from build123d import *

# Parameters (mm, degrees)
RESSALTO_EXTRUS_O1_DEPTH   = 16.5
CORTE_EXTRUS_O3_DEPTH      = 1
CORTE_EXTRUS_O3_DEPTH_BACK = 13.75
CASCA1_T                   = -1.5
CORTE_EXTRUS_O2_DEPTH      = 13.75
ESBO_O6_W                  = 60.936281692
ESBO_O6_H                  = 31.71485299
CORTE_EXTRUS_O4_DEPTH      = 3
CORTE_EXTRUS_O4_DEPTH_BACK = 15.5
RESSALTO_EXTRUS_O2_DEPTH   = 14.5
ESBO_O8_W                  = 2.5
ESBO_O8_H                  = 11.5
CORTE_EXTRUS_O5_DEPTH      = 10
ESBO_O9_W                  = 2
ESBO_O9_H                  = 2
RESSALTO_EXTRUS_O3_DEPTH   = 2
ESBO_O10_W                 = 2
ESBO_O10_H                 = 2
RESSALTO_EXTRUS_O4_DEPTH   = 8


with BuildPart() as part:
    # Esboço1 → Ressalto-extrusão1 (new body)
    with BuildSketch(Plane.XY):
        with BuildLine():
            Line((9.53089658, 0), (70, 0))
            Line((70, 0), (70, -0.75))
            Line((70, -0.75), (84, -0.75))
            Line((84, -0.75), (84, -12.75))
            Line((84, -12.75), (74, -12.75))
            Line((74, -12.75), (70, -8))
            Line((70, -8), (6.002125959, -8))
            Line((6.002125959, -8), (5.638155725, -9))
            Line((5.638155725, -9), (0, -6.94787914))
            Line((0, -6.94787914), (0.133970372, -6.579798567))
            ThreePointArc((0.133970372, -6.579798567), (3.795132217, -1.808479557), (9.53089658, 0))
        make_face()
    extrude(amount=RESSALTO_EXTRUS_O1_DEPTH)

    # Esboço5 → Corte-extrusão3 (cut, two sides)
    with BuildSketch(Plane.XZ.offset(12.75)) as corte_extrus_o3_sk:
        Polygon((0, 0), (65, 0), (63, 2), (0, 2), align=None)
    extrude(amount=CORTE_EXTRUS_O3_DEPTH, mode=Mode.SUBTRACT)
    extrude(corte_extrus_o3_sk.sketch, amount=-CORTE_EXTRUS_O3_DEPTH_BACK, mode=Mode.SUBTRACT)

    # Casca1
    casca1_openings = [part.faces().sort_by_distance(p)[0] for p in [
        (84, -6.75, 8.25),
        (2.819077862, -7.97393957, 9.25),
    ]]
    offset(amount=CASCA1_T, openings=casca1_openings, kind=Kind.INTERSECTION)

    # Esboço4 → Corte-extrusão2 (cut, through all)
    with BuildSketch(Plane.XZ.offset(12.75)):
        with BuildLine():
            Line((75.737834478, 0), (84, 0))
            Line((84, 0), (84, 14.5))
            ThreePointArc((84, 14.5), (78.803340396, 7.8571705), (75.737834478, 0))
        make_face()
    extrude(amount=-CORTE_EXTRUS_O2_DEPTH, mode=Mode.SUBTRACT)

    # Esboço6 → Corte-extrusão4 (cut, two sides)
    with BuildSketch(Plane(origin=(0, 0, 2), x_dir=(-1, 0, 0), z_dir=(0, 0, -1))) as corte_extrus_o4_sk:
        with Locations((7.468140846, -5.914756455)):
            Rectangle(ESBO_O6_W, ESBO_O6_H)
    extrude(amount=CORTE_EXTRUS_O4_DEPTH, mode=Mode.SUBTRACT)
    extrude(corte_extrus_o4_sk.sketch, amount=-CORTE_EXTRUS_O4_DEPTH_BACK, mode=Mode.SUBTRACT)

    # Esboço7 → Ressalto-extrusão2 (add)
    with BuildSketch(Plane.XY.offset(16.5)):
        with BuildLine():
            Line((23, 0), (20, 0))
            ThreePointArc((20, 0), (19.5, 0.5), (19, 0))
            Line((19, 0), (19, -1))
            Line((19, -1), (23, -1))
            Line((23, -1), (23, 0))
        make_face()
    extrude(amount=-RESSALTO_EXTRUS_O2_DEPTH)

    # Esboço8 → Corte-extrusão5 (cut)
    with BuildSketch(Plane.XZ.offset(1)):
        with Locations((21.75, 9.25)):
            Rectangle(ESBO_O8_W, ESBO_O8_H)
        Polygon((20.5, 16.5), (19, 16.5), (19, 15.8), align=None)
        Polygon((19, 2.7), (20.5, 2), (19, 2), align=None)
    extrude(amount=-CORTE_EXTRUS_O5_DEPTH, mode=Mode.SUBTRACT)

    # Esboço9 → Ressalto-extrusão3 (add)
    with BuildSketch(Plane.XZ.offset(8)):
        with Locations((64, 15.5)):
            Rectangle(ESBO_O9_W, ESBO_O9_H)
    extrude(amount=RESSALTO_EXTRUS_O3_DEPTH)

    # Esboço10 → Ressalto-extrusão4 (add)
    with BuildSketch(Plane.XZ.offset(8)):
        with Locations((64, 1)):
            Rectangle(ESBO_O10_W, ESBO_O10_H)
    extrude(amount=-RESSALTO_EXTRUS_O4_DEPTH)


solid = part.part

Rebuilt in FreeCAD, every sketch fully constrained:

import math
import FreeCAD as App
import Part
import Sketcher

V = App.Vector
Q = App.Units.Quantity


def faces_at(feature, points):
    """Names of the faces that lie closest to the given points."""
    faces = feature.Shape.Faces
    near = lambda p: min(range(len(faces)), key=lambda i: faces[i].distToShape(Part.Vertex(*p))[0])
    return sorted({f"Face{near(p) + 1}" for p in points})


def add_polygon(sketch, points):
    """Adds a closed chain of lines whose ends are joined by coincident constraints."""
    first, n = sketch.GeometryCount, len(points)
    for a, b in zip(points, points[1:] + points[:1]):
        sketch.addGeometry(Part.LineSegment(App.Vector(*a, 0), App.Vector(*b, 0)), False)
    for i in range(n):
        sketch.addConstraint(Sketcher.Constraint("Coincident", first + i, 2, first + (i + 1) % n, 1))

doc = App.newDocument("Part")
params = doc.addObject("Spreadsheet::Sheet", "Params")
for row, (alias, value) in enumerate([
    ("sketch1_radius", "10 mm"),
    ("sketch1_width", "10 mm"),
    ("sketch1_width2", "14 mm"),
    ("sketch1_height", "12 mm"),
    ("sketch1_length", "6 mm"),
    ("pad1_length", "16.5 mm"),
    ("sketch2_width", "65 mm"),
    ("sketch2_width2", "63 mm"),
    ("sketch2_height", "2 mm"),
    ("thickness_wall", "1.5 mm"),
    ("sketch3_radius", "29 mm"),
    ("sketch3_height", "14.5 mm"),
    ("sketch5_radius", "0.5 mm"),
    ("sketch5_width", "3 mm"),
    ("sketch5_height", "1 mm"),
    ("pad2_length", "14.5 mm"),
    ("sketch6_width", "2.5 mm"),
    ("sketch6_width2", "1.5 mm"),
    ("sketch6_height", "11.5 mm"),
    ("sketch6_height2", "0.7 mm"),
    ("pocket4_length", "10 mm"),
    ("sketch7_width", "2 mm"),
    ("pad3_length", "2 mm"),
    ("sketch8_width", "2 mm"),
    ("pad4_length", "8 mm"),
], start=1):
    params.set(f"A{row}", alias)
    params.set(f"B{row}", "=" + value)
    params.setAlias(f"B{row}", alias)

body = doc.addObject("PartDesign::Body", "Body")

# Sketch on XY plane
sketch1 = body.newObject("Sketcher::SketchObject", "Sketch")
sketch1.AttachmentSupport = (doc.getObject("XY_Plane"), [""])
sketch1.MapMode = "FlatFace"
sketch1.addGeometry(Part.LineSegment(V(70, 0, 0), V(9.53, 0, 0)), False)
sketch1.addGeometry(Part.ArcOfCircle(Part.Circle(V(9.53, -10, 0), V(0, 0, 1), 10), math.radians(90), math.radians(160)), False)
sketch1.addGeometry(Part.LineSegment(V(0.13, -6.58, 0), V(0, -6.95, 0)), False)
sketch1.addGeometry(Part.LineSegment(V(0, -6.95, 0), V(5.64, -9, 0)), False)
sketch1.addGeometry(Part.LineSegment(V(5.64, -9, 0), V(6, -8, 0)), False)
sketch1.addGeometry(Part.LineSegment(V(6, -8, 0), V(70, -8, 0)), False)
sketch1.addGeometry(Part.LineSegment(V(70, -8, 0), V(74, -12.75, 0)), False)
sketch1.addGeometry(Part.LineSegment(V(74, -12.75, 0), V(84, -12.75, 0)), False)
sketch1.addGeometry(Part.LineSegment(V(84, -12.75, 0), V(84, -0.75, 0)), False)
sketch1.addGeometry(Part.LineSegment(V(84, -0.75, 0), V(70, -0.75, 0)), False)
sketch1.addGeometry(Part.LineSegment(V(70, -0.75, 0), V(70, 0, 0)), False)
sketch1.addConstraint(Sketcher.Constraint("Tangent", 0, 2, 1, 1))
sketch1.addConstraint(Sketcher.Constraint("Tangent", 1, 2, 2, 1))
sketch1.addConstraint(Sketcher.Constraint("Coincident", 2, 2, 3, 1))
sketch1.addConstraint(Sketcher.Constraint("Coincident", 3, 2, 4, 1))
sketch1.addConstraint(Sketcher.Constraint("Coincident", 4, 2, 5, 1))
sketch1.addConstraint(Sketcher.Constraint("Coincident", 5, 2, 6, 1))
sketch1.addConstraint(Sketcher.Constraint("Coincident", 6, 2, 7, 1))
sketch1.addConstraint(Sketcher.Constraint("Coincident", 7, 2, 8, 1))
sketch1.addConstraint(Sketcher.Constraint("Coincident", 8, 2, 9, 1))
sketch1.addConstraint(Sketcher.Constraint("Coincident", 9, 2, 10, 1))
sketch1.addConstraint(Sketcher.Constraint("Coincident", 10, 2, 0, 1))
sketch1.addConstraint(Sketcher.Constraint("Horizontal", 0))
sketch1.addConstraint(Sketcher.Constraint("Horizontal", 5))
sketch1.addConstraint(Sketcher.Constraint("Horizontal", 7))
sketch1.addConstraint(Sketcher.Constraint("Vertical", 8))
sketch1.addConstraint(Sketcher.Constraint("Horizontal", 9))
sketch1.addConstraint(Sketcher.Constraint("Vertical", 10))
sketch1.addConstraint(Sketcher.Constraint("PointOnObject", 0, 2, -1))
sketch1.addConstraint(Sketcher.Constraint("PointOnObject", 2, 2, -2))
sketch1.addConstraint(Sketcher.Constraint("Perpendicular", 2, 3))
sketch1.addConstraint(Sketcher.Constraint("Perpendicular", 3, 4))
sketch1.addConstraint(Sketcher.Constraint("Vertical", 5, 2, 9, 2))
sketch1.addConstraint(Sketcher.Constraint("Radius", 1, 10.0))
sketch1.addConstraint(Sketcher.Constraint("DistanceX", 7, 1, 7, 2, 10.0))
sketch1.addConstraint(Sketcher.Constraint("DistanceX", 9, 2, 9, 1, 14.0))
sketch1.addConstraint(Sketcher.Constraint("DistanceY", 8, 1, 8, 2, 12.0))
sketch1.addConstraint(Sketcher.Constraint("Angle", 2, Q("-110 deg")))
sketch1.addConstraint(Sketcher.Constraint("Distance", 3, 6.0))
sketch1.addConstraint(Sketcher.Constraint("DistanceY", 3, 2, -1, 1, 9.0))
sketch1.addConstraint(Sketcher.Constraint("DistanceY", 4, 2, -1, 1, 8.0))
sketch1.addConstraint(Sketcher.Constraint("DistanceX", -1, 1, 5, 2, 70.0))
sketch1.addConstraint(Sketcher.Constraint("DistanceY", 10, 1, 10, 2, 0.75))
sketch1.setExpression("Constraints[22]", "Params.sketch1_radius")
sketch1.setExpression("Constraints[23]", "Params.sketch1_width")
sketch1.setExpression("Constraints[24]", "Params.sketch1_width2")
sketch1.setExpression("Constraints[25]", "Params.sketch1_height")
sketch1.setExpression("Constraints[27]", "Params.sketch1_length")
pad1 = body.newObject("PartDesign::Pad", "Pad")
pad1.Profile = sketch1
pad1.setExpression("Length", "Params.pad1_length")

# Sketch on XZ plane
sketch2 = body.newObject("Sketcher::SketchObject", "Sketch001")
sketch2.AttachmentSupport = (doc.getObject("XZ_Plane"), [""])
sketch2.MapMode = "FlatFace"
sketch2.AttachmentOffset = App.Placement(V(0, 0, 12.75), App.Rotation())
add_polygon(sketch2, [(0, 0), (65, 0), (63, 2), (0, 2)])  # lines 0-3
sketch2.addConstraint(Sketcher.Constraint("Horizontal", 0))
sketch2.addConstraint(Sketcher.Constraint("Horizontal", 2))
sketch2.addConstraint(Sketcher.Constraint("Vertical", 3))
sketch2.addConstraint(Sketcher.Constraint("Coincident", 3, 2, -1, 1))
sketch2.addConstraint(Sketcher.Constraint("DistanceX", 0, 1, 0, 2, 65.0))
sketch2.addConstraint(Sketcher.Constraint("DistanceX", 2, 2, 2, 1, 63.0))
sketch2.addConstraint(Sketcher.Constraint("DistanceY", 3, 2, 3, 1, 2.0))
sketch2.setExpression("Constraints[8]", "Params.sketch2_width")
sketch2.setExpression("Constraints[9]", "Params.sketch2_width2")
sketch2.setExpression("Constraints[10]", "Params.sketch2_height")
pocket1 = body.newObject("PartDesign::Pocket", "Pocket")
pocket1.Profile = sketch2
pocket1.Type = "ThroughAll"
pocket1.Midplane = True
doc.recompute()

thickness = body.newObject("PartDesign::Thickness", "Thickness")
thickness.Base = (pocket1, faces_at(pocket1, [(84, -6.75, 8.25), (2.819, -7.974, 9.25)]))
thickness.setExpression("Value", "Params.thickness_wall")
thickness.Reversed = True
thickness.Join = "Intersection"

# Sketch on XZ plane
sketch3 = body.newObject("Sketcher::SketchObject", "Sketch002")
sketch3.AttachmentSupport = (doc.getObject("XZ_Plane"), [""])
sketch3.MapMode = "FlatFace"
sketch3.AttachmentOffset = App.Placement(V(0, 0, 12.75), App.Rotation())
sketch3.addGeometry(Part.LineSegment(V(76, 0, 0), V(84, 0, 0)), False)
sketch3.addGeometry(Part.LineSegment(V(84, 0, 0), V(84, 14, 0)), False)
sketch3.addGeometry(Part.ArcOfCircle(Part.Circle(V(104, -7, 0), V(0, 0, 1), 29), math.radians(134), math.radians(167)), False)
sketch3.addConstraint(Sketcher.Constraint("Coincident", 0, 2, 1, 1))
sketch3.addConstraint(Sketcher.Constraint("Coincident", 1, 2, 2, 1))
sketch3.addConstraint(Sketcher.Constraint("Coincident", 2, 2, 0, 1))
sketch3.addConstraint(Sketcher.Constraint("Horizontal", 0))
sketch3.addConstraint(Sketcher.Constraint("Vertical", 1))
sketch3.addConstraint(Sketcher.Constraint("PointOnObject", 0, 2, -1))
sketch3.addConstraint(Sketcher.Constraint("Radius", 2, 29.0))
sketch3.addConstraint(Sketcher.Constraint("DistanceY", 1, 1, 1, 2, 14.5))
sketch3.addConstraint(Sketcher.Constraint("DistanceX", -1, 1, 2, 3, 104.0))
sketch3.addConstraint(Sketcher.Constraint("DistanceX", -1, 1, 0, 2, 84.0))
sketch3.setExpression("Constraints[6]", "Params.sketch3_radius")
sketch3.setExpression("Constraints[7]", "Params.sketch3_height")
pocket2 = body.newObject("PartDesign::Pocket", "Pocket001")
pocket2.Profile = sketch3
pocket2.Type = "ThroughAll"

# Sketch on XY plane
sketch4 = body.newObject("Sketcher::SketchObject", "Sketch003")
sketch4.AttachmentSupport = (doc.getObject("XY_Plane"), [""])
sketch4.MapMode = "FlatFace"
sketch4.AttachmentOffset = App.Placement(V(0, 0, 2), App.Rotation())
add_polygon(sketch4, [(23, 10), (23, -22), (-38, -22), (-38, 10)])  # lines 0-3
sketch4.addConstraint(Sketcher.Constraint("Vertical", 0))
sketch4.addConstraint(Sketcher.Constraint("Horizontal", 1))
sketch4.addConstraint(Sketcher.Constraint("Vertical", 2))
sketch4.addConstraint(Sketcher.Constraint("Horizontal", 3))
sketch4.addConstraint(Sketcher.Constraint("DistanceX", -1, 1, 0, 2, 23.0))
sketch4.addConstraint(Sketcher.Constraint("DistanceX", 1, 2, 1, 1, 60.936282))
sketch4.addConstraint(Sketcher.Constraint("DistanceY", 0, 2, 0, 1, 31.714853))
sketch4.addConstraint(Sketcher.Constraint("DistanceY", -1, 1, 2, 2, 9.94267))
pocket3 = body.newObject("PartDesign::Pocket", "Pocket002")
pocket3.Profile = sketch4
pocket3.Type = "ThroughAll"
pocket3.Midplane = True

# Sketch on XY plane
sketch5 = body.newObject("Sketcher::SketchObject", "Sketch004")
sketch5.AttachmentSupport = (doc.getObject("XY_Plane"), [""])
sketch5.MapMode = "FlatFace"
sketch5.AttachmentOffset = App.Placement(V(0, 0, 16.5), App.Rotation())
sketch5.addGeometry(Part.LineSegment(V(23, 0, 0), V(20, 0, 0)), False)
sketch5.addGeometry(Part.ArcOfCircle(Part.Circle(V(19.5, 0, 0), V(0, 0, 1), 0.5), math.radians(0), math.radians(180)), False)
sketch5.addGeometry(Part.LineSegment(V(19, 0, 0), V(19, -1, 0)), False)
sketch5.addGeometry(Part.LineSegment(V(19, -1, 0), V(23, -1, 0)), False)
sketch5.addGeometry(Part.LineSegment(V(23, -1, 0), V(23, 0, 0)), False)
sketch5.addConstraint(Sketcher.Constraint("Coincident", 0, 2, 1, 1))
sketch5.addConstraint(Sketcher.Constraint("Tangent", 1, 2, 2, 1))
sketch5.addConstraint(Sketcher.Constraint("Coincident", 2, 2, 3, 1))
sketch5.addConstraint(Sketcher.Constraint("Coincident", 3, 2, 4, 1))
sketch5.addConstraint(Sketcher.Constraint("Coincident", 4, 2, 0, 1))
sketch5.addConstraint(Sketcher.Constraint("Horizontal", 0))
sketch5.addConstraint(Sketcher.Constraint("Vertical", 2))
sketch5.addConstraint(Sketcher.Constraint("Horizontal", 3))
sketch5.addConstraint(Sketcher.Constraint("Vertical", 4))
sketch5.addConstraint(Sketcher.Constraint("PointOnObject", 1, 3, -1))
sketch5.addConstraint(Sketcher.Constraint("PointOnObject", 0, 2, -1))
sketch5.addConstraint(Sketcher.Constraint("Radius", 1, 0.5))
sketch5.addConstraint(Sketcher.Constraint("DistanceX", 0, 2, 0, 1, 3.0))
sketch5.addConstraint(Sketcher.Constraint("DistanceY", 2, 2, 2, 1, 1.0))
sketch5.addConstraint(Sketcher.Constraint("DistanceX", -1, 1, 0, 2, 20.0))
sketch5.setExpression("Constraints[11]", "Params.sketch5_radius")
sketch5.setExpression("Constraints[12]", "Params.sketch5_width")
sketch5.setExpression("Constraints[13]", "Params.sketch5_height")
pad2 = body.newObject("PartDesign::Pad", "Pad001")
pad2.Profile = sketch5
pad2.setExpression("Length", "Params.pad2_length")
pad2.Reversed = True

# Sketch on XZ plane
sketch6 = body.newObject("Sketcher::SketchObject", "Sketch005")
sketch6.AttachmentSupport = (doc.getObject("XZ_Plane"), [""])
sketch6.MapMode = "FlatFace"
sketch6.AttachmentOffset = App.Placement(V(0, 0, 1), App.Rotation())
add_polygon(sketch6, [(20.5, 15), (20.5, 3.5), (23, 3.5), (23, 15)])  # lines 0-3
add_polygon(sketch6, [(20.5, 16.5), (19, 16.5), (19, 15.8)])  # lines 4-6
add_polygon(sketch6, [(20.5, 2), (19, 2.7), (19, 2)])  # lines 7-9
sketch6.addConstraint(Sketcher.Constraint("Vertical", 0))
sketch6.addConstraint(Sketcher.Constraint("Horizontal", 1))
sketch6.addConstraint(Sketcher.Constraint("Vertical", 2))
sketch6.addConstraint(Sketcher.Constraint("Horizontal", 3))
sketch6.addConstraint(Sketcher.Constraint("Horizontal", 4))
sketch6.addConstraint(Sketcher.Constraint("Vertical", 5))
sketch6.addConstraint(Sketcher.Constraint("Vertical", 8))
sketch6.addConstraint(Sketcher.Constraint("Horizontal", 9))
sketch6.addConstraint(Sketcher.Constraint("Vertical", 3, 2, 6, 2))
sketch6.addConstraint(Sketcher.Constraint("Vertical", 5, 2, 7, 2))
sketch6.addConstraint(Sketcher.Constraint("Vertical", 6, 2, 9, 2))
sketch6.addConstraint(Sketcher.Constraint("Equal", 5, 8))
sketch6.addConstraint(Sketcher.Constraint("DistanceX", 1, 1, 1, 2, 2.5))
sketch6.addConstraint(Sketcher.Constraint("DistanceX", 4, 2, 4, 1, 1.5))
sketch6.addConstraint(Sketcher.Constraint("DistanceY", 0, 2, 0, 1, 11.5))
sketch6.addConstraint(Sketcher.Constraint("DistanceY", 5, 2, 5, 1, 0.7))
sketch6.addConstraint(Sketcher.Constraint("DistanceX", -1, 1, 1, 2, 23.0))
sketch6.addConstraint(Sketcher.Constraint("DistanceY", -1, 1, 2, 2, 15.0))
sketch6.addConstraint(Sketcher.Constraint("DistanceY", -1, 1, 8, 2, 2.0))
sketch6.addConstraint(Sketcher.Constraint("DistanceY", 0, 2, 4, 2, 13.0))
sketch6.setExpression("Constraints[22]", "Params.sketch6_width")
sketch6.setExpression("Constraints[23]", "Params.sketch6_width2")
sketch6.setExpression("Constraints[24]", "Params.sketch6_height")
sketch6.setExpression("Constraints[25]", "Params.sketch6_height2")
pocket4 = body.newObject("PartDesign::Pocket", "Pocket003")
pocket4.Profile = sketch6
pocket4.setExpression("Length", "Params.pocket4_length")

# Sketch on XZ plane
sketch7 = body.newObject("Sketcher::SketchObject", "Sketch006")
sketch7.AttachmentSupport = (doc.getObject("XZ_Plane"), [""])
sketch7.MapMode = "FlatFace"
sketch7.AttachmentOffset = App.Placement(V(0, 0, 8), App.Rotation())
add_polygon(sketch7, [(63, 16.5), (63, 14.5), (65, 14.5), (65, 16.5)])  # lines 0-3
sketch7.addConstraint(Sketcher.Constraint("Vertical", 0))
sketch7.addConstraint(Sketcher.Constraint("Horizontal", 1))
sketch7.addConstraint(Sketcher.Constraint("Vertical", 2))
sketch7.addConstraint(Sketcher.Constraint("Horizontal", 3))
sketch7.addConstraint(Sketcher.Constraint("Equal", 3, 0))
sketch7.addConstraint(Sketcher.Constraint("DistanceX", 1, 1, 1, 2, 2.0))
sketch7.addConstraint(Sketcher.Constraint("DistanceX", -1, 1, 0, 2, 63.0))
sketch7.addConstraint(Sketcher.Constraint("DistanceY", -1, 1, 0, 2, 14.5))
sketch7.setExpression("Constraints[9]", "Params.sketch7_width")
pad3 = body.newObject("PartDesign::Pad", "Pad002")
pad3.Profile = sketch7
pad3.setExpression("Length", "Params.pad3_length")

# Sketch on XZ plane
sketch8 = body.newObject("Sketcher::SketchObject", "Sketch007")
sketch8.AttachmentSupport = (doc.getObject("XZ_Plane"), [""])
sketch8.MapMode = "FlatFace"
sketch8.AttachmentOffset = App.Placement(V(0, 0, 8), App.Rotation())
add_polygon(sketch8, [(63, 2), (63, 0), (65, 0), (65, 2)])  # lines 0-3
sketch8.addConstraint(Sketcher.Constraint("Vertical", 0))
sketch8.addConstraint(Sketcher.Constraint("Horizontal", 1))
sketch8.addConstraint(Sketcher.Constraint("Vertical", 2))
sketch8.addConstraint(Sketcher.Constraint("Horizontal", 3))
sketch8.addConstraint(Sketcher.Constraint("PointOnObject", 0, 2, -1))
sketch8.addConstraint(Sketcher.Constraint("Equal", 3, 0))
sketch8.addConstraint(Sketcher.Constraint("DistanceX", 1, 1, 1, 2, 2.0))
sketch8.addConstraint(Sketcher.Constraint("DistanceX", -1, 1, 0, 2, 63.0))
sketch8.setExpression("Constraints[10]", "Params.sketch8_width")
pad4 = body.newObject("PartDesign::Pad", "Pad003")
pad4.Profile = sketch8
pad4.setExpression("Length", "Params.pad4_length")
pad4.Reversed = True

doc.recompute()
